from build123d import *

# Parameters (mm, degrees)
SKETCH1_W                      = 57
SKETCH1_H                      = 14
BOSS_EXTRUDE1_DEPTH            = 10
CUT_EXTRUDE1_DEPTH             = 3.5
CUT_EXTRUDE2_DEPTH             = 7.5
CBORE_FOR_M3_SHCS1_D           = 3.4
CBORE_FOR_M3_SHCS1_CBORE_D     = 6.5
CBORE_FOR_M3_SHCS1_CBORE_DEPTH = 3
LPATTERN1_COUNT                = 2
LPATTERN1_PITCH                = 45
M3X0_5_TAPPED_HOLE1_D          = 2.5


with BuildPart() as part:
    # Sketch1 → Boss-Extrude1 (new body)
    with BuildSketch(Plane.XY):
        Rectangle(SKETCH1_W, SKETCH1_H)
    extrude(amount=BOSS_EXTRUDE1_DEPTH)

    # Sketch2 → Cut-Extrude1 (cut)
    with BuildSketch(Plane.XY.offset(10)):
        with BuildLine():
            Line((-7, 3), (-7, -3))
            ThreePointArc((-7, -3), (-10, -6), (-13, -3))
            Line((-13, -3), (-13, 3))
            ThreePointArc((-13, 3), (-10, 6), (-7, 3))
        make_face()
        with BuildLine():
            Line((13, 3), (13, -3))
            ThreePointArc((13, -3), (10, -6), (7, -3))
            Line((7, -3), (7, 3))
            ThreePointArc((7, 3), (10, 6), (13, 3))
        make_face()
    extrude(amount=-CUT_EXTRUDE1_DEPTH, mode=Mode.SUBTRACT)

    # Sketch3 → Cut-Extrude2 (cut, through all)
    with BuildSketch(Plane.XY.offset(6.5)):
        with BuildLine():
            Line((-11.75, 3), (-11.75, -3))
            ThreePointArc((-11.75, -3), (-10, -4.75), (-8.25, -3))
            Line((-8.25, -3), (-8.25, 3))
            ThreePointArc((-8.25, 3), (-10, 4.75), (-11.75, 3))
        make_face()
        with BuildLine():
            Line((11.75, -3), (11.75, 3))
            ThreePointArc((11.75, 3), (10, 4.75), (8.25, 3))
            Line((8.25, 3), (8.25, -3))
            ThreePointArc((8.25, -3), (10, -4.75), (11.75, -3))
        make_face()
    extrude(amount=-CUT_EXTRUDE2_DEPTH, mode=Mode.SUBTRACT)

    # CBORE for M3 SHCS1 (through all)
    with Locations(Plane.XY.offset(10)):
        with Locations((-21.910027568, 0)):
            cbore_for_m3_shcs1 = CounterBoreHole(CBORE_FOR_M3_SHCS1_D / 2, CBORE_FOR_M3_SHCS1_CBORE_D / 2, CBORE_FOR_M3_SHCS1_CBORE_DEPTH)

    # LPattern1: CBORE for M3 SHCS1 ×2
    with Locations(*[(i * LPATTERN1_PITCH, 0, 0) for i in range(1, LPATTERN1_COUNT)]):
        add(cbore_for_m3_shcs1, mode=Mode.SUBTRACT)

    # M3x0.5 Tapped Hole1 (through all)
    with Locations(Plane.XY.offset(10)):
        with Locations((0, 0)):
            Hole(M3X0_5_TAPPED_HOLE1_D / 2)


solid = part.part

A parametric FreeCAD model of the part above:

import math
import FreeCAD as App
import Part
import Sketcher

doc = App.newDocument("Part")
body = doc.addObject("PartDesign::Body", "Body")

sketch1 = body.newObject("Sketcher::SketchObject", "Sketch")
sketch1.AttachmentSupport = (doc.getObject("XY_Plane"), [""])
sketch1.MapMode = "FlatFace"
sketch1.addGeometry(Part.LineSegment(App.Vector(-28, 7, 0), App.Vector(-28, -7, 0)), False)
sketch1.addGeometry(Part.LineSegment(App.Vector(-28, -7, 0), App.Vector(28, -7, 0)), False)
sketch1.addGeometry(Part.LineSegment(App.Vector(28, -7, 0), App.Vector(28, 7, 0)), False)
sketch1.addGeometry(Part.LineSegment(App.Vector(28, 7, 0), App.Vector(-28, 7, 0)), False)
sketch1.addConstraint(Sketcher.Constraint("Coincident", 0, 2, 1, 1))
sketch1.addConstraint(Sketcher.Constraint("Coincident", 1, 2, 2, 1))
sketch1.addConstraint(Sketcher.Constraint("Coincident", 2, 2, 3, 1))
sketch1.addConstraint(Sketcher.Constraint("Coincident", 3, 2, 0, 1))
sketch1.addConstraint(Sketcher.Constraint("Vertical", 0))
sketch1.addConstraint(Sketcher.Constraint("Horizontal", 1))
sketch1.addConstraint(Sketcher.Constraint("Vertical", 2))
sketch1.addConstraint(Sketcher.Constraint("Horizontal", 3))
sketch1.addConstraint(Sketcher.Constraint("Symmetric", 0, 2, 2, 2, -1, 1))
sketch1.addConstraint(Sketcher.Constraint("DistanceX", 1, 1, 1, 2, 57.0))
sketch1.addConstraint(Sketcher.Constraint("DistanceY", 0, 2, 0, 1, 14.0))
pad1 = body.newObject("PartDesign::Pad", "Pad")
pad1.Profile = sketch1
pad1.Length = 10

sketch2 = body.newObject("Sketcher::SketchObject", "Sketch001")
sketch2.AttachmentSupport = (doc.getObject("XY_Plane"), [""])
sketch2.MapMode = "FlatFace"
sketch2.AttachmentOffset = App.Placement(App.Vector(0, 0, 10), App.Rotation())
sketch2.addGeometry(Part.LineSegment(App.Vector(-7, -3, 0), App.Vector(-7, 3, 0)), False)
sketch2.addGeometry(Part.ArcOfCircle(Part.Circle(App.Vector(-10, 3, 0), App.Vector(0, 0, 1), 3), math.radians(0), math.radians(180)), False)
sketch2.addGeometry(Part.LineSegment(App.Vector(-13, 3, 0), App.Vector(-13, -3, 0)), False)
sketch2.addGeometry(Part.ArcOfCircle(Part.Circle(App.Vector(-10, -3, 0), App.Vector(0, 0, 1), 3), math.radians(180), math.radians(360)), False)
sketch2.addGeometry(Part.LineSegment(App.Vector(13, -3, 0), App.Vector(13, 3, 0)), False)
sketch2.addGeometry(Part.ArcOfCircle(Part.Circle(App.Vector(10, 3, 0), App.Vector(0, 0, 1), 3), math.radians(0), math.radians(180)), False)
sketch2.addGeometry(Part.LineSegment(App.Vector(7, 3, 0), App.Vector(7, -3, 0)), False)
sketch2.addGeometry(Part.ArcOfCircle(Part.Circle(App.Vector(10, -3, 0), App.Vector(0, 0, 1), 3), math.radians(180), math.radians(360)), False)
sketch2.addConstraint(Sketcher.Constraint("Tangent", 0, 2, 1, 1))
sketch2.addConstraint(Sketcher.Constraint("Tangent", 1, 2, 2, 1))
sketch2.addConstraint(Sketcher.Constraint("Tangent", 2, 2, 3, 1))
sketch2.addConstraint(Sketcher.Constraint("Tangent", 3, 2, 0, 1))
sketch2.addConstraint(Sketcher.Constraint("Tangent", 4, 2, 5, 1))
sketch2.addConstraint(Sketcher.Constraint("Tangent", 5, 2, 6, 1))
sketch2.addConstraint(Sketcher.Constraint("Tangent", 6, 2, 7, 1))
sketch2.addConstraint(Sketcher.Constraint("Tangent", 7, 2, 4, 1))
sketch2.addConstraint(Sketcher.Constraint("Vertical", 0))
sketch2.addConstraint(Sketcher.Constraint("Vertical", 2))
sketch2.addConstraint(Sketcher.Constraint("Vertical", 4))
sketch2.addConstraint(Sketcher.Constraint("Vertical", 6))
sketch2.addConstraint(Sketcher.Constraint("Equal", 3, 5))
sketch2.addConstraint(Sketcher.Constraint("Symmetric", 3, 3, 5, 3, -1, 1))
sketch2.addConstraint(Sketcher.Constraint("Horizontal", 1, 3, 5, 3))
sketch2.addConstraint(Sketcher.Constraint("Horizontal", 3, 3, 7, 3))
sketch2.addConstraint(Sketcher.Constraint("Radius", 1, 3.0))
sketch2.addConstraint(Sketcher.Constraint("DistanceY", 0, 1, 0, 2, 6.0))
sketch2.addConstraint(Sketcher.Constraint("DistanceX", 1, 3, -1, 1, 10.0))
pocket1 = body.newObject("PartDesign::Pocket", "Pocket")
pocket1.Profile = sketch2
pocket1.Length = 3.5

sketch3 = body.newObject("Sketcher::SketchObject", "Sketch002")
sketch3.AttachmentSupport = (doc.getObject("XY_Plane"), [""])
sketch3.MapMode = "FlatFace"
sketch3.AttachmentOffset = App.Placement(App.Vector(0, 0, 6.5), App.Rotation())
sketch3.addGeometry(Part.LineSegment(App.Vector(-11.8, 3, 0), App.Vector(-11.8, -3, 0)), False)
sketch3.addGeometry(Part.ArcOfCircle(Part.Circle(App.Vector(-10, -3, 0), App.Vector(0, 0, 1), 1.8), math.radians(180), math.radians(360)), False)
sketch3.addGeometry(Part.LineSegment(App.Vector(-8.2, -3, 0), App.Vector(-8.2, 3, 0)), False)
sketch3.addGeometry(Part.ArcOfCircle(Part.Circle(App.Vector(-10, 3, 0), App.Vector(0, 0, 1), 1.8), math.radians(0), math.radians(180)), False)
sketch3.addGeometry(Part.LineSegment(App.Vector(11.8, -3, 0), App.Vector(11.8, 3, 0)), False)
sketch3.addGeometry(Part.ArcOfCircle(Part.Circle(App.Vector(10, 3, 0), App.Vector(0, 0, 1), 1.8), math.radians(0), math.radians(180)), False)
sketch3.addGeometry(Part.LineSegment(App.Vector(8.2, 3, 0), App.Vector(8.2, -3, 0)), False)
sketch3.addGeometry(Part.ArcOfCircle(Part.Circle(App.Vector(10, -3, 0), App.Vector(0, 0, 1), 1.8), math.radians(180), math.radians(360)), False)
sketch3.addConstraint(Sketcher.Constraint("Tangent", 0, 2, 1, 1))
sketch3.addConstraint(Sketcher.Constraint("Tangent", 1, 2, 2, 1))
sketch3.addConstraint(Sketcher.Constraint("Tangent", 2, 2, 3, 1))
sketch3.addConstraint(Sketcher.Constraint("Tangent", 3, 2, 0, 1))
sketch3.addConstraint(Sketcher.Constraint("Tangent", 4, 2, 5, 1))
sketch3.addConstraint(Sketcher.Constraint("Tangent", 5, 2, 6, 1))
sketch3.addConstraint(Sketcher.Constraint("Tangent", 6, 2, 7, 1))
sketch3.addConstraint(Sketcher.Constraint("Tangent", 7, 2, 4, 1))
sketch3.addConstraint(Sketcher.Constraint("Vertical", 0))
sketch3.addConstraint(Sketcher.Constraint("Vertical", 2))
sketch3.addConstraint(Sketcher.Constraint("Vertical", 4))
sketch3.addConstraint(Sketcher.Constraint("Vertical", 6))
sketch3.addConstraint(Sketcher.Constraint("Equal", 3, 5))
sketch3.addConstraint(Sketcher.Constraint("Symmetric", 1, 3, 5, 3, -1, 1))
sketch3.addConstraint(Sketcher.Constraint("Horizontal", 3, 3, 5, 3))
sketch3.addConstraint(Sketcher.Constraint("Horizontal", 1, 3, 7, 3))
sketch3.addConstraint(Sketcher.Constraint("DistanceY", 0, 2, 0, 1, 6.0))
sketch3.addConstraint(Sketcher.Constraint("Radius", 1, 1.75))
sketch3.addConstraint(Sketcher.Constraint("DistanceX", 1, 3, -1, 1, 10.0))
pocket2 = body.newObject("PartDesign::Pocket", "Pocket001")
pocket2.Profile = sketch3
pocket2.Type = "ThroughAll"

sketch4 = body.newObject("Sketcher::SketchObject", "Sketch003")
sketch4.AttachmentSupport = (doc.getObject("XY_Plane"), [""])
sketch4.MapMode = "FlatFace"
sketch4.AttachmentOffset = App.Placement(App.Vector(0, 0, 10), App.Rotation())
sketch4.addGeometry(Part.Circle(App.Vector(-21.9, 0, 0), App.Vector(0, 0, 1), 1.7), False)
sketch4.addConstraint(Sketcher.Constraint("PointOnObject", 0, 3, -1))
sketch4.addConstraint(Sketcher.Constraint("Diameter", 0, 3.4))
sketch4.addConstraint(Sketcher.Constraint("DistanceX", 0, 3, -1, 1, 21.910028))
doc.recompute()
hole = body.newObject("PartDesign::Hole", "Hole")
hole.Profile = sketch4
hole.ThreadType = "None"
hole.Diameter = 3.4
hole.DepthType = "ThroughAll"
hole.HoleCutType = "Counterbore"
hole.HoleCutDiameter = 6.5
hole.HoleCutDepth = 3
doc.recompute()

linearpattern = body.newObject("PartDesign::LinearPattern", "LinearPattern")
linearpattern.Originals = [hole]
linearpattern.Direction = (doc.getObject("X_Axis"), [""])
linearpattern.Mode = "offset"
linearpattern.Offset = 45
linearpattern.Occurrences = 2
body.Tip = linearpattern

sketch5 = body.newObject("Sketcher::SketchObject", "Sketch004")
sketch5.AttachmentSupport = (doc.getObject("XY_Plane"), [""])
sketch5.MapMode = "FlatFace"
sketch5.AttachmentOffset = App.Placement(App.Vector(0, 0, 10), App.Rotation())
sketch5.addGeometry(Part.Circle(App.Vector(0, 0, 0), App.Vector(0, 0, 1), 1.2), False)
sketch5.addConstraint(Sketcher.Constraint("Coincident", 0, 3, -1, 1))
sketch5.addConstraint(Sketcher.Constraint("Diameter", 0, 2.5))
doc.recompute()
hole2 = body.newObject("PartDesign::Hole", "Hole001")
hole2.Profile = sketch5
hole2.ThreadType = "None"
hole2.Diameter = 2.5
hole2.DepthType = "ThroughAll"

doc.recompute()
